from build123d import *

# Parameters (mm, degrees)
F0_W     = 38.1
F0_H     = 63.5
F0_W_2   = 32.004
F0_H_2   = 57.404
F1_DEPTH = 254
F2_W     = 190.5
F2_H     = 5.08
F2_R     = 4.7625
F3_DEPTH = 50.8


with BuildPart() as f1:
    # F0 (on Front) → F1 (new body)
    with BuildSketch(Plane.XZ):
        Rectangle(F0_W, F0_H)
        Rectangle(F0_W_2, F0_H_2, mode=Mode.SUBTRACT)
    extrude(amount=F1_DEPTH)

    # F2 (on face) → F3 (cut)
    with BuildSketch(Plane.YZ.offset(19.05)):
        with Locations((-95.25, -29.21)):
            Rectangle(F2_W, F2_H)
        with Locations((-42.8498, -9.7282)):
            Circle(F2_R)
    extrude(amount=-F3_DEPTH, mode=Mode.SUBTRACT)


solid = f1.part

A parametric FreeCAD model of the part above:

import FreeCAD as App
import Part
import Sketcher

V = App.Vector
Q = App.Units.Quantity


def add_polygon(sketch, points):
    """Adds a closed chain of lines whose ends are joined by coincident constraints."""
    first, n = sketch.GeometryCount, len(points)
    for a, b in zip(points, points[1:] + points[:1]):
        sketch.addGeometry(Part.LineSegment(App.Vector(*a, 0), App.Vector(*b, 0)), False)
    for i in range(n):
        sketch.addConstraint(Sketcher.Constraint("Coincident", first + i, 2, first + (i + 1) % n, 1))

doc = App.newDocument("Part")
body = doc.addObject("PartDesign::Body", "Body")

# Sketch on XZ plane
sketch1 = body.newObject("Sketcher::SketchObject", "Sketch")
sketch1.AttachmentSupport = (doc.getObject("XZ_Plane"), [""])
sketch1.MapMode = "FlatFace"
add_polygon(sketch1, [(-19, 32), (-19, -32), (19, -32), (19, 32)])  # lines 0-3
add_polygon(sketch1, [(16, -29), (-16, -29), (-16, 29), (16, 29)])  # lines 4-7
sketch1.addConstraint([
    Sketcher.Constraint("Vertical", 0),
    Sketcher.Constraint("Horizontal", 1),
    Sketcher.Constraint("Vertical", 2),
    Sketcher.Constraint("Horizontal", 3),
    Sketcher.Constraint("Horizontal", 4),
    Sketcher.Constraint("Vertical", 5),
    Sketcher.Constraint("Horizontal", 6),
    Sketcher.Constraint("Vertical", 7),
    Sketcher.Constraint("Symmetric", 0, 2, 2, 2, -1, 1),
    Sketcher.Constraint("Symmetric", 4, 2, 6, 2, -1, 1),
    Sketcher.Constraint("DistanceX", 1, 1, 1, 2, Q("1.5 in")),
    Sketcher.Constraint("DistanceY", 0, 2, 0, 1, Q("2.5 in")),
    Sketcher.Constraint("DistanceX", 4, 2, 4, 1, Q("1.26 in")),
    Sketcher.Constraint("DistanceY", 5, 1, 5, 2, Q("2.26 in")),
])
pad1 = body.newObject("PartDesign::Pad", "Pad")
pad1.Profile = sketch1
pad1.Length = Q("10 in")

# Sketch on YZ plane
sketch2 = body.newObject("Sketcher::SketchObject", "Sketch001")
sketch2.AttachmentSupport = (doc.getObject("YZ_Plane"), [""])
sketch2.MapMode = "FlatFace"
sketch2.AttachmentOffset = App.Placement(V(0, 0, 0.75 * 25.4), App.Rotation())
add_polygon(sketch2, [(-190.5, -26.7), (-190.5, -31.8), (0, -31.8), (0, -26.7)])  # lines 0-3
sketch2.addGeometry(Part.Circle(V(-42.8, -9.7, 0), V(0, 0, 1), 4.8), False)  # 4
sketch2.addConstraint([
    Sketcher.Constraint("Vertical", 0),
    Sketcher.Constraint("Horizontal", 1),
    Sketcher.Constraint("Vertical", 2),
    Sketcher.Constraint("Horizontal", 3),
    Sketcher.Constraint("PointOnObject", 1, 2, -2),
    Sketcher.Constraint("Diameter", 4, Q("0.375 in")),
    Sketcher.Constraint("DistanceX", 1, 1, 1, 2, Q("7.5 in")),
    Sketcher.Constraint("DistanceY", 0, 2, 0, 1, Q("0.2 in")),
    Sketcher.Constraint("DistanceY", 0, 2, -1, 1, Q("1.25 in")),
    Sketcher.Constraint("DistanceX", 4, 3, -1, 1, Q("1.687 in")),
    Sketcher.Constraint("DistanceY", 4, 3, -1, 1, Q("0.383 in")),
])
pocket1 = body.newObject("PartDesign::Pocket", "Pocket")
pocket1.Profile = sketch2
pocket1.Length = Q("2 in")

doc.recompute()
